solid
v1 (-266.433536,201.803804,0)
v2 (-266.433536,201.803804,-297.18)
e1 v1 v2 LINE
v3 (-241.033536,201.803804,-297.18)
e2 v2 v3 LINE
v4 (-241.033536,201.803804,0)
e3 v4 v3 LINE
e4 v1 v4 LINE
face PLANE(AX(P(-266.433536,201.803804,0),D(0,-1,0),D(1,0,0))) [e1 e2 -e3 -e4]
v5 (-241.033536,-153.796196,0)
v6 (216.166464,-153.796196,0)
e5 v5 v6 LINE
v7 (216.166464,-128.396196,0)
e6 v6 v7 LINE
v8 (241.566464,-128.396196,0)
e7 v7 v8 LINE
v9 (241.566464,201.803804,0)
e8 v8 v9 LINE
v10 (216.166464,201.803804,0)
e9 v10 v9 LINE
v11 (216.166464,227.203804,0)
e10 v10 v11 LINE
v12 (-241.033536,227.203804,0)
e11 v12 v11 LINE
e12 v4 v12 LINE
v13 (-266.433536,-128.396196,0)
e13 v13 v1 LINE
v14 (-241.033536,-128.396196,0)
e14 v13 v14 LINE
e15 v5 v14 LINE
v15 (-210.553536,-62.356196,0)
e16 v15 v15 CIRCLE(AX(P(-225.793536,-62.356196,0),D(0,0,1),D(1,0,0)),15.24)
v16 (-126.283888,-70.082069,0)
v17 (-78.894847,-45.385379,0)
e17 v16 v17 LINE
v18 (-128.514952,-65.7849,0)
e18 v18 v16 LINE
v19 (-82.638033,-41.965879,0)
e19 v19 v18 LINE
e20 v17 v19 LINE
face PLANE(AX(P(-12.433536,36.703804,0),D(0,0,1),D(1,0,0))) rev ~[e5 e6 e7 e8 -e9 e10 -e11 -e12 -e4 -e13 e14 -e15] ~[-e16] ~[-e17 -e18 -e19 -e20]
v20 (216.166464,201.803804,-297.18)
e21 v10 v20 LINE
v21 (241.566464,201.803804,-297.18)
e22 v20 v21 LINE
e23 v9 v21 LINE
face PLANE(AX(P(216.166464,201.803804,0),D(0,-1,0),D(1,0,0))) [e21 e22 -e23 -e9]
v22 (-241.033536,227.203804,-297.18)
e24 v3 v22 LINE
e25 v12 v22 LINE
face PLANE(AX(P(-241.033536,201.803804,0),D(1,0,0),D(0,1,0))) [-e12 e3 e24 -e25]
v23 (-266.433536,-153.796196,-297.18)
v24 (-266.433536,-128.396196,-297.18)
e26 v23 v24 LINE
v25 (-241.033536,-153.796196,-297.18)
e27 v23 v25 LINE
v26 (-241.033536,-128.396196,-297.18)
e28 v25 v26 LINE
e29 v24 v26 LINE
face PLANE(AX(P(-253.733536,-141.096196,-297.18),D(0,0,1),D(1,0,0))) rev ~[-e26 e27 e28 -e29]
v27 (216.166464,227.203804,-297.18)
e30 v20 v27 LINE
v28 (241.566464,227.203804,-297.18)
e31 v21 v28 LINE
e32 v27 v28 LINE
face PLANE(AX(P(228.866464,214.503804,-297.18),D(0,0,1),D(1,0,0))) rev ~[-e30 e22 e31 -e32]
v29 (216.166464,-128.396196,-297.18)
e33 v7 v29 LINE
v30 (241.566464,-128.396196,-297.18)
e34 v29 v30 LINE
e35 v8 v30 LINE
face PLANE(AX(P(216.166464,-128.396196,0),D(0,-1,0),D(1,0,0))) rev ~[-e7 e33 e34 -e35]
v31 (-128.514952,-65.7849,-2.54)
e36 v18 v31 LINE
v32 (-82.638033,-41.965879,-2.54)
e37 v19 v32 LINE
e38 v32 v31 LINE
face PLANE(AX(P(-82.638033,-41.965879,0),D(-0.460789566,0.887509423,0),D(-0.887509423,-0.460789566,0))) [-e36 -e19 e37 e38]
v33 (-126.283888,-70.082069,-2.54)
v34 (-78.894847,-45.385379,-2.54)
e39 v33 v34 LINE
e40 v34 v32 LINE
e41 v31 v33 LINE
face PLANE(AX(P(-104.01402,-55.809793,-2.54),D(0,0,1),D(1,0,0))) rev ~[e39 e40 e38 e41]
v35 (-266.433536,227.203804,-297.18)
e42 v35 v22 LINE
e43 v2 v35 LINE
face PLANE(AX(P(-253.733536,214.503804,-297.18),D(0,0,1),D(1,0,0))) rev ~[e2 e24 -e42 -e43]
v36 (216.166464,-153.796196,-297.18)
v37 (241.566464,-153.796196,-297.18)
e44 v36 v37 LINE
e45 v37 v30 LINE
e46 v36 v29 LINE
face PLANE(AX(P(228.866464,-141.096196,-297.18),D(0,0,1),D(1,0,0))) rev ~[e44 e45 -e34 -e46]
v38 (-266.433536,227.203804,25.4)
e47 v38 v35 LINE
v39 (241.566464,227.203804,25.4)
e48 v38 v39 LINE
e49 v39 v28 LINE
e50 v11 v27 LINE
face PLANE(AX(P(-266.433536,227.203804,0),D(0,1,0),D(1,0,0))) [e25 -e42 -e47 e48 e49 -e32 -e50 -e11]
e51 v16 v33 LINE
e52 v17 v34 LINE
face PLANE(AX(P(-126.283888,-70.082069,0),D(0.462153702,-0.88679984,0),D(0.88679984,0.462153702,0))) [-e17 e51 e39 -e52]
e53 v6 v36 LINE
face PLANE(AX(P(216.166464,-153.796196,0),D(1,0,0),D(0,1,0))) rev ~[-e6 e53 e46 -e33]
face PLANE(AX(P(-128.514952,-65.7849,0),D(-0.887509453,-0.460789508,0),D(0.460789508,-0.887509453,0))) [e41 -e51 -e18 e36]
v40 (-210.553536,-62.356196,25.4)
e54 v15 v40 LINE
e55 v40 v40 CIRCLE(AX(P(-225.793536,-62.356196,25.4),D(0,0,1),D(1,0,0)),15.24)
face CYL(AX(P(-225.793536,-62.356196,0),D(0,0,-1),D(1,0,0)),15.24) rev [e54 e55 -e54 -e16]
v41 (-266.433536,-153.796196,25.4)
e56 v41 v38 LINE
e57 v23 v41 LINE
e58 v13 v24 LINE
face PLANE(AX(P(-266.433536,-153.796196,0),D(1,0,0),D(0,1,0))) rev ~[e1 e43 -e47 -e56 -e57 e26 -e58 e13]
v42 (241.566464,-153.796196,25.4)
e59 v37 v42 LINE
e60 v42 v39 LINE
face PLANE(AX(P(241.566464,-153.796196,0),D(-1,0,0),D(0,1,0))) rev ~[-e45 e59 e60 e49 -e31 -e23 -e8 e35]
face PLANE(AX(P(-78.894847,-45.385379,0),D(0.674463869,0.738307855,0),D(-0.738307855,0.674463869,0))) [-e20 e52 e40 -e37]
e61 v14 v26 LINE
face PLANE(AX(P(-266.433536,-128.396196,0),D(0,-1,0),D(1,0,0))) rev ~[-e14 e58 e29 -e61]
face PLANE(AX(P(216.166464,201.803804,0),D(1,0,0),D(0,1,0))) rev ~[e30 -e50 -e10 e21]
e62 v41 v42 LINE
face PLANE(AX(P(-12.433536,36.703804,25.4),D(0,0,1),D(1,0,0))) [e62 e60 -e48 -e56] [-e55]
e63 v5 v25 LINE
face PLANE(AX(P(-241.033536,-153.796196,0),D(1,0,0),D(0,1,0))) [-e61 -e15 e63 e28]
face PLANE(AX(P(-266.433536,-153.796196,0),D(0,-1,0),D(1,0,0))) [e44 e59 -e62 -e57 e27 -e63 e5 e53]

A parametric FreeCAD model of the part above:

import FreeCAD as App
import Part
import Sketcher
Q = App.Units.Quantity

doc = App.newDocument("Part")
body = doc.addObject("PartDesign::Body", "Body")

# Sketch on XY plane
sketch1 = doc.addObject("Sketcher::SketchObject", "Sketch")
body.addObject(sketch1)
sketch1.AttachmentSupport = (doc.XY_Plane, [""])
sketch1.MapMode = "FlatFace"
sketch1.addGeometry([
    Part.LineSegment(App.Vector(-266.433536, 227.203804, 0), App.Vector(-266.433536, -153.796196, 0)),  # 0
    Part.LineSegment(App.Vector(-266.433536, -153.796196, 0), App.Vector(241.566464, -153.796196, 0)),  # 1
    Part.LineSegment(App.Vector(241.566464, -153.796196, 0), App.Vector(241.566464, 227.203804, 0)),  # 2
    Part.LineSegment(App.Vector(241.566464, 227.203804, 0), App.Vector(-266.433536, 227.203804, 0)),  # 3
    Part.Circle(App.Vector(-225.793536, -62.356196, 0), App.Vector(0, 0, 1), 15.24),  # 4
], False)
sketch1.addConstraint([
    Sketcher.Constraint("Coincident", 0, 2, 1, 1),
    Sketcher.Constraint("Coincident", 1, 2, 2, 1),
    Sketcher.Constraint("Coincident", 2, 2, 3, 1),
    Sketcher.Constraint("Coincident", 3, 2, 0, 1),
    Sketcher.Constraint("Vertical", 0),
    Sketcher.Constraint("Horizontal", 1),
    Sketcher.Constraint("Vertical", 2),
    Sketcher.Constraint("Horizontal", 3),
    Sketcher.Constraint("Diameter", 4, Q("1.2 in")),
    Sketcher.Constraint("DistanceX", 1, 1, 1, 2, Q("20 in")),
    Sketcher.Constraint("DistanceY", 0, 2, 0, 1, Q("15 in")),
    Sketcher.Constraint("DistanceX", 0, 2, 4, 3, Q("1.6 in")),
    Sketcher.Constraint("DistanceY", 0, 2, 4, 3, Q("3.6 in")),
    Sketcher.Constraint("DistanceX", 4, 3, -1, 1, 225.793536),
    Sketcher.Constraint("DistanceY", 4, 3, -1, 1, 62.356196),
])
pad1 = doc.addObject("PartDesign::Pad", "Pad")
body.addObject(pad1)
pad1.Profile = sketch1
pad1.Length = Q("1 in")

# Sketch on XY plane
sketch2 = doc.addObject("Sketcher::SketchObject", "Sketch001")
body.addObject(sketch2)
sketch2.AttachmentSupport = (doc.XY_Plane, [""])
sketch2.MapMode = "FlatFace"
sketch2.addGeometry([
    Part.LineSegment(App.Vector(-266.433536, -128.396196, 0), App.Vector(-266.433536, -153.796196, 0)),  # 0
    Part.LineSegment(App.Vector(-266.433536, -153.796196, 0), App.Vector(-241.033536, -153.796196, 0)),  # 1
    Part.LineSegment(App.Vector(-241.033536, -153.796196, 0), App.Vector(-241.033536, -128.396196, 0)),  # 2
    Part.LineSegment(App.Vector(-241.033536, -128.396196, 0), App.Vector(-266.433536, -128.396196, 0)),  # 3
    Part.LineSegment(App.Vector(216.166464, 227.203804, 0), App.Vector(216.166464, 201.803804, 0)),  # 4
    Part.LineSegment(App.Vector(216.166464, 201.803804, 0), App.Vector(241.566464, 201.803804, 0)),  # 5
    Part.LineSegment(App.Vector(241.566464, 201.803804, 0), App.Vector(241.566464, 227.203804, 0)),  # 6
    Part.LineSegment(App.Vector(241.566464, 227.203804, 0), App.Vector(216.166464, 227.203804, 0)),  # 7
    Part.LineSegment(App.Vector(216.166464, -128.396196, 0), App.Vector(216.166464, -153.796196, 0)),  # 8
    Part.LineSegment(App.Vector(216.166464, -153.796196, 0), App.Vector(241.566464, -153.796196, 0)),  # 9
    Part.LineSegment(App.Vector(241.566464, -153.796196, 0), App.Vector(241.566464, -128.396196, 0)),  # 10
    Part.LineSegment(App.Vector(241.566464, -128.396196, 0), App.Vector(216.166464, -128.396196, 0)),  # 11
    Part.LineSegment(App.Vector(-266.433536, 227.203804, 0), App.Vector(-266.433536, 201.803804, 0)),  # 12
    Part.LineSegment(App.Vector(-266.433536, 201.803804, 0), App.Vector(-241.033536, 201.803804, 0)),  # 13
    Part.LineSegment(App.Vector(-241.033536, 201.803804, 0), App.Vector(-241.033536, 227.203804, 0)),  # 14
    Part.LineSegment(App.Vector(-241.033536, 227.203804, 0), App.Vector(-266.433536, 227.203804, 0)),  # 15
], False)
sketch2.addConstraint([
    Sketcher.Constraint("Coincident", 0, 2, 1, 1),
    Sketcher.Constraint("Coincident", 1, 2, 2, 1),
    Sketcher.Constraint("Coincident", 2, 2, 3, 1),
    Sketcher.Constraint("Coincident", 3, 2, 0, 1),
    Sketcher.Constraint("Coincident", 4, 2, 5, 1),
    Sketcher.Constraint("Coincident", 5, 2, 6, 1),
    Sketcher.Constraint("Coincident", 6, 2, 7, 1),
    Sketcher.Constraint("Coincident", 7, 2, 4, 1),
    Sketcher.Constraint("Coincident", 8, 2, 9, 1),
    Sketcher.Constraint("Coincident", 9, 2, 10, 1),
    Sketcher.Constraint("Coincident", 10, 2, 11, 1),
    Sketcher.Constraint("Coincident", 11, 2, 8, 1),
    Sketcher.Constraint("Coincident", 12, 2, 13, 1),
    Sketcher.Constraint("Coincident", 13, 2, 14, 1),
    Sketcher.Constraint("Coincident", 14, 2, 15, 1),
    Sketcher.Constraint("Coincident", 15, 2, 12, 1),
    Sketcher.Constraint("Vertical", 0),
    Sketcher.Constraint("Horizontal", 1),
    Sketcher.Constraint("Vertical", 2),
    Sketcher.Constraint("Horizontal", 3),
    Sketcher.Constraint("Vertical", 4),
    Sketcher.Constraint("Horizontal", 5),
    Sketcher.Constraint("Vertical", 6),
    Sketcher.Constraint("Horizontal", 7),
    Sketcher.Constraint("Vertical", 8),
    Sketcher.Constraint("Horizontal", 9),
    Sketcher.Constraint("Vertical", 10),
    Sketcher.Constraint("Horizontal", 11),
    Sketcher.Constraint("Vertical", 12),
    Sketcher.Constraint("Horizontal", 13),
    Sketcher.Constraint("Vertical", 14),
    Sketcher.Constraint("Horizontal", 15),
    Sketcher.Constraint("Horizontal", 1, 2, 8, 2),
    Sketcher.Constraint("Horizontal", 3, 2, 10, 2),
    Sketcher.Constraint("Horizontal", 5, 2, 12, 2),
    Sketcher.Constraint("Horizontal", 7, 2, 14, 2),
    Sketcher.Constraint("Vertical", 7, 2, 8, 2),
    Sketcher.Constraint("Vertical", 6, 2, 9, 2),
    Sketcher.Constraint("Vertical", 3, 2, 12, 2),
    Sketcher.Constraint("Vertical", 2, 2, 13, 2),
    Sketcher.Constraint("Equal", 3, 5),
    Sketcher.Constraint("Equal", 15, 0),
    Sketcher.Constraint("Equal", 2, 4),
    Sketcher.Constraint("DistanceX", 1, 1, 1, 2, Q("1 in")),
    Sketcher.Constraint("DistanceX", 2, 2, 4, 2, Q("18 in")),
    Sketcher.Constraint("DistanceY", 2, 2, 4, 2, Q("13 in")),
    Sketcher.Constraint("DistanceX", 0, 2, -1, 1, 266.433536),
    Sketcher.Constraint("DistanceY", 0, 2, -1, 1, 153.796196),
])
pad2 = doc.addObject("PartDesign::Pad", "Pad001")
body.addObject(pad2)
pad2.Profile = sketch2
pad2.Length = Q("11.7 in")
pad2.Reversed = True

# Sketch on XY plane
sketch3 = doc.addObject("Sketcher::SketchObject", "Sketch002")
body.addObject(sketch3)
sketch3.AttachmentSupport = (doc.XY_Plane, [""])
sketch3.MapMode = "FlatFace"
sketch3.addGeometry([
    Part.LineSegment(App.Vector(-78.894847, -45.385379, 0), App.Vector(-82.638033, -41.965879, 0)),
    Part.LineSegment(App.Vector(-82.638033, -41.965879, 0), App.Vector(-128.514952, -65.7849, 0)),
    Part.LineSegment(App.Vector(-128.514952, -65.7849, 0), App.Vector(-126.283888, -70.082069, 0)),
    Part.LineSegment(App.Vector(-126.283888, -70.082069, 0), App.Vector(-78.894847, -45.385379, 0)),
], False)
sketch3.addConstraint([
    Sketcher.Constraint("Coincident", 0, 2, 1, 1),
    Sketcher.Constraint("Coincident", 1, 2, 2, 1),
    Sketcher.Constraint("Coincident", 2, 2, 3, 1),
    Sketcher.Constraint("Coincident", 3, 2, 0, 1),
    Sketcher.Constraint("Perpendicular", 1, 2),
    Sketcher.Constraint("DistanceY", 0, 2, -1, 1, Q("1.6522 in")),
    Sketcher.Constraint("DistanceY", 1, 2, -1, 1, 65.7849),
    Sketcher.Constraint("DistanceY", 3, 2, 0, 2, 3.4195),
    Sketcher.Constraint("Distance", 2, 4.841829),
    Sketcher.Constraint("Distance", 3, 53.438261),
    Sketcher.Constraint("DistanceX", 1, 2, -1, 1, 128.514952),
    Sketcher.Constraint("DistanceX", 2, 2, -1, 1, 126.283888),
])
pad3 = doc.addObject("PartDesign::Pad", "Pad002")
body.addObject(pad3)
pad3.Profile = sketch3
pad3.Length = Q("0.1 in")
pad3.Reversed = True

doc.recompute()
